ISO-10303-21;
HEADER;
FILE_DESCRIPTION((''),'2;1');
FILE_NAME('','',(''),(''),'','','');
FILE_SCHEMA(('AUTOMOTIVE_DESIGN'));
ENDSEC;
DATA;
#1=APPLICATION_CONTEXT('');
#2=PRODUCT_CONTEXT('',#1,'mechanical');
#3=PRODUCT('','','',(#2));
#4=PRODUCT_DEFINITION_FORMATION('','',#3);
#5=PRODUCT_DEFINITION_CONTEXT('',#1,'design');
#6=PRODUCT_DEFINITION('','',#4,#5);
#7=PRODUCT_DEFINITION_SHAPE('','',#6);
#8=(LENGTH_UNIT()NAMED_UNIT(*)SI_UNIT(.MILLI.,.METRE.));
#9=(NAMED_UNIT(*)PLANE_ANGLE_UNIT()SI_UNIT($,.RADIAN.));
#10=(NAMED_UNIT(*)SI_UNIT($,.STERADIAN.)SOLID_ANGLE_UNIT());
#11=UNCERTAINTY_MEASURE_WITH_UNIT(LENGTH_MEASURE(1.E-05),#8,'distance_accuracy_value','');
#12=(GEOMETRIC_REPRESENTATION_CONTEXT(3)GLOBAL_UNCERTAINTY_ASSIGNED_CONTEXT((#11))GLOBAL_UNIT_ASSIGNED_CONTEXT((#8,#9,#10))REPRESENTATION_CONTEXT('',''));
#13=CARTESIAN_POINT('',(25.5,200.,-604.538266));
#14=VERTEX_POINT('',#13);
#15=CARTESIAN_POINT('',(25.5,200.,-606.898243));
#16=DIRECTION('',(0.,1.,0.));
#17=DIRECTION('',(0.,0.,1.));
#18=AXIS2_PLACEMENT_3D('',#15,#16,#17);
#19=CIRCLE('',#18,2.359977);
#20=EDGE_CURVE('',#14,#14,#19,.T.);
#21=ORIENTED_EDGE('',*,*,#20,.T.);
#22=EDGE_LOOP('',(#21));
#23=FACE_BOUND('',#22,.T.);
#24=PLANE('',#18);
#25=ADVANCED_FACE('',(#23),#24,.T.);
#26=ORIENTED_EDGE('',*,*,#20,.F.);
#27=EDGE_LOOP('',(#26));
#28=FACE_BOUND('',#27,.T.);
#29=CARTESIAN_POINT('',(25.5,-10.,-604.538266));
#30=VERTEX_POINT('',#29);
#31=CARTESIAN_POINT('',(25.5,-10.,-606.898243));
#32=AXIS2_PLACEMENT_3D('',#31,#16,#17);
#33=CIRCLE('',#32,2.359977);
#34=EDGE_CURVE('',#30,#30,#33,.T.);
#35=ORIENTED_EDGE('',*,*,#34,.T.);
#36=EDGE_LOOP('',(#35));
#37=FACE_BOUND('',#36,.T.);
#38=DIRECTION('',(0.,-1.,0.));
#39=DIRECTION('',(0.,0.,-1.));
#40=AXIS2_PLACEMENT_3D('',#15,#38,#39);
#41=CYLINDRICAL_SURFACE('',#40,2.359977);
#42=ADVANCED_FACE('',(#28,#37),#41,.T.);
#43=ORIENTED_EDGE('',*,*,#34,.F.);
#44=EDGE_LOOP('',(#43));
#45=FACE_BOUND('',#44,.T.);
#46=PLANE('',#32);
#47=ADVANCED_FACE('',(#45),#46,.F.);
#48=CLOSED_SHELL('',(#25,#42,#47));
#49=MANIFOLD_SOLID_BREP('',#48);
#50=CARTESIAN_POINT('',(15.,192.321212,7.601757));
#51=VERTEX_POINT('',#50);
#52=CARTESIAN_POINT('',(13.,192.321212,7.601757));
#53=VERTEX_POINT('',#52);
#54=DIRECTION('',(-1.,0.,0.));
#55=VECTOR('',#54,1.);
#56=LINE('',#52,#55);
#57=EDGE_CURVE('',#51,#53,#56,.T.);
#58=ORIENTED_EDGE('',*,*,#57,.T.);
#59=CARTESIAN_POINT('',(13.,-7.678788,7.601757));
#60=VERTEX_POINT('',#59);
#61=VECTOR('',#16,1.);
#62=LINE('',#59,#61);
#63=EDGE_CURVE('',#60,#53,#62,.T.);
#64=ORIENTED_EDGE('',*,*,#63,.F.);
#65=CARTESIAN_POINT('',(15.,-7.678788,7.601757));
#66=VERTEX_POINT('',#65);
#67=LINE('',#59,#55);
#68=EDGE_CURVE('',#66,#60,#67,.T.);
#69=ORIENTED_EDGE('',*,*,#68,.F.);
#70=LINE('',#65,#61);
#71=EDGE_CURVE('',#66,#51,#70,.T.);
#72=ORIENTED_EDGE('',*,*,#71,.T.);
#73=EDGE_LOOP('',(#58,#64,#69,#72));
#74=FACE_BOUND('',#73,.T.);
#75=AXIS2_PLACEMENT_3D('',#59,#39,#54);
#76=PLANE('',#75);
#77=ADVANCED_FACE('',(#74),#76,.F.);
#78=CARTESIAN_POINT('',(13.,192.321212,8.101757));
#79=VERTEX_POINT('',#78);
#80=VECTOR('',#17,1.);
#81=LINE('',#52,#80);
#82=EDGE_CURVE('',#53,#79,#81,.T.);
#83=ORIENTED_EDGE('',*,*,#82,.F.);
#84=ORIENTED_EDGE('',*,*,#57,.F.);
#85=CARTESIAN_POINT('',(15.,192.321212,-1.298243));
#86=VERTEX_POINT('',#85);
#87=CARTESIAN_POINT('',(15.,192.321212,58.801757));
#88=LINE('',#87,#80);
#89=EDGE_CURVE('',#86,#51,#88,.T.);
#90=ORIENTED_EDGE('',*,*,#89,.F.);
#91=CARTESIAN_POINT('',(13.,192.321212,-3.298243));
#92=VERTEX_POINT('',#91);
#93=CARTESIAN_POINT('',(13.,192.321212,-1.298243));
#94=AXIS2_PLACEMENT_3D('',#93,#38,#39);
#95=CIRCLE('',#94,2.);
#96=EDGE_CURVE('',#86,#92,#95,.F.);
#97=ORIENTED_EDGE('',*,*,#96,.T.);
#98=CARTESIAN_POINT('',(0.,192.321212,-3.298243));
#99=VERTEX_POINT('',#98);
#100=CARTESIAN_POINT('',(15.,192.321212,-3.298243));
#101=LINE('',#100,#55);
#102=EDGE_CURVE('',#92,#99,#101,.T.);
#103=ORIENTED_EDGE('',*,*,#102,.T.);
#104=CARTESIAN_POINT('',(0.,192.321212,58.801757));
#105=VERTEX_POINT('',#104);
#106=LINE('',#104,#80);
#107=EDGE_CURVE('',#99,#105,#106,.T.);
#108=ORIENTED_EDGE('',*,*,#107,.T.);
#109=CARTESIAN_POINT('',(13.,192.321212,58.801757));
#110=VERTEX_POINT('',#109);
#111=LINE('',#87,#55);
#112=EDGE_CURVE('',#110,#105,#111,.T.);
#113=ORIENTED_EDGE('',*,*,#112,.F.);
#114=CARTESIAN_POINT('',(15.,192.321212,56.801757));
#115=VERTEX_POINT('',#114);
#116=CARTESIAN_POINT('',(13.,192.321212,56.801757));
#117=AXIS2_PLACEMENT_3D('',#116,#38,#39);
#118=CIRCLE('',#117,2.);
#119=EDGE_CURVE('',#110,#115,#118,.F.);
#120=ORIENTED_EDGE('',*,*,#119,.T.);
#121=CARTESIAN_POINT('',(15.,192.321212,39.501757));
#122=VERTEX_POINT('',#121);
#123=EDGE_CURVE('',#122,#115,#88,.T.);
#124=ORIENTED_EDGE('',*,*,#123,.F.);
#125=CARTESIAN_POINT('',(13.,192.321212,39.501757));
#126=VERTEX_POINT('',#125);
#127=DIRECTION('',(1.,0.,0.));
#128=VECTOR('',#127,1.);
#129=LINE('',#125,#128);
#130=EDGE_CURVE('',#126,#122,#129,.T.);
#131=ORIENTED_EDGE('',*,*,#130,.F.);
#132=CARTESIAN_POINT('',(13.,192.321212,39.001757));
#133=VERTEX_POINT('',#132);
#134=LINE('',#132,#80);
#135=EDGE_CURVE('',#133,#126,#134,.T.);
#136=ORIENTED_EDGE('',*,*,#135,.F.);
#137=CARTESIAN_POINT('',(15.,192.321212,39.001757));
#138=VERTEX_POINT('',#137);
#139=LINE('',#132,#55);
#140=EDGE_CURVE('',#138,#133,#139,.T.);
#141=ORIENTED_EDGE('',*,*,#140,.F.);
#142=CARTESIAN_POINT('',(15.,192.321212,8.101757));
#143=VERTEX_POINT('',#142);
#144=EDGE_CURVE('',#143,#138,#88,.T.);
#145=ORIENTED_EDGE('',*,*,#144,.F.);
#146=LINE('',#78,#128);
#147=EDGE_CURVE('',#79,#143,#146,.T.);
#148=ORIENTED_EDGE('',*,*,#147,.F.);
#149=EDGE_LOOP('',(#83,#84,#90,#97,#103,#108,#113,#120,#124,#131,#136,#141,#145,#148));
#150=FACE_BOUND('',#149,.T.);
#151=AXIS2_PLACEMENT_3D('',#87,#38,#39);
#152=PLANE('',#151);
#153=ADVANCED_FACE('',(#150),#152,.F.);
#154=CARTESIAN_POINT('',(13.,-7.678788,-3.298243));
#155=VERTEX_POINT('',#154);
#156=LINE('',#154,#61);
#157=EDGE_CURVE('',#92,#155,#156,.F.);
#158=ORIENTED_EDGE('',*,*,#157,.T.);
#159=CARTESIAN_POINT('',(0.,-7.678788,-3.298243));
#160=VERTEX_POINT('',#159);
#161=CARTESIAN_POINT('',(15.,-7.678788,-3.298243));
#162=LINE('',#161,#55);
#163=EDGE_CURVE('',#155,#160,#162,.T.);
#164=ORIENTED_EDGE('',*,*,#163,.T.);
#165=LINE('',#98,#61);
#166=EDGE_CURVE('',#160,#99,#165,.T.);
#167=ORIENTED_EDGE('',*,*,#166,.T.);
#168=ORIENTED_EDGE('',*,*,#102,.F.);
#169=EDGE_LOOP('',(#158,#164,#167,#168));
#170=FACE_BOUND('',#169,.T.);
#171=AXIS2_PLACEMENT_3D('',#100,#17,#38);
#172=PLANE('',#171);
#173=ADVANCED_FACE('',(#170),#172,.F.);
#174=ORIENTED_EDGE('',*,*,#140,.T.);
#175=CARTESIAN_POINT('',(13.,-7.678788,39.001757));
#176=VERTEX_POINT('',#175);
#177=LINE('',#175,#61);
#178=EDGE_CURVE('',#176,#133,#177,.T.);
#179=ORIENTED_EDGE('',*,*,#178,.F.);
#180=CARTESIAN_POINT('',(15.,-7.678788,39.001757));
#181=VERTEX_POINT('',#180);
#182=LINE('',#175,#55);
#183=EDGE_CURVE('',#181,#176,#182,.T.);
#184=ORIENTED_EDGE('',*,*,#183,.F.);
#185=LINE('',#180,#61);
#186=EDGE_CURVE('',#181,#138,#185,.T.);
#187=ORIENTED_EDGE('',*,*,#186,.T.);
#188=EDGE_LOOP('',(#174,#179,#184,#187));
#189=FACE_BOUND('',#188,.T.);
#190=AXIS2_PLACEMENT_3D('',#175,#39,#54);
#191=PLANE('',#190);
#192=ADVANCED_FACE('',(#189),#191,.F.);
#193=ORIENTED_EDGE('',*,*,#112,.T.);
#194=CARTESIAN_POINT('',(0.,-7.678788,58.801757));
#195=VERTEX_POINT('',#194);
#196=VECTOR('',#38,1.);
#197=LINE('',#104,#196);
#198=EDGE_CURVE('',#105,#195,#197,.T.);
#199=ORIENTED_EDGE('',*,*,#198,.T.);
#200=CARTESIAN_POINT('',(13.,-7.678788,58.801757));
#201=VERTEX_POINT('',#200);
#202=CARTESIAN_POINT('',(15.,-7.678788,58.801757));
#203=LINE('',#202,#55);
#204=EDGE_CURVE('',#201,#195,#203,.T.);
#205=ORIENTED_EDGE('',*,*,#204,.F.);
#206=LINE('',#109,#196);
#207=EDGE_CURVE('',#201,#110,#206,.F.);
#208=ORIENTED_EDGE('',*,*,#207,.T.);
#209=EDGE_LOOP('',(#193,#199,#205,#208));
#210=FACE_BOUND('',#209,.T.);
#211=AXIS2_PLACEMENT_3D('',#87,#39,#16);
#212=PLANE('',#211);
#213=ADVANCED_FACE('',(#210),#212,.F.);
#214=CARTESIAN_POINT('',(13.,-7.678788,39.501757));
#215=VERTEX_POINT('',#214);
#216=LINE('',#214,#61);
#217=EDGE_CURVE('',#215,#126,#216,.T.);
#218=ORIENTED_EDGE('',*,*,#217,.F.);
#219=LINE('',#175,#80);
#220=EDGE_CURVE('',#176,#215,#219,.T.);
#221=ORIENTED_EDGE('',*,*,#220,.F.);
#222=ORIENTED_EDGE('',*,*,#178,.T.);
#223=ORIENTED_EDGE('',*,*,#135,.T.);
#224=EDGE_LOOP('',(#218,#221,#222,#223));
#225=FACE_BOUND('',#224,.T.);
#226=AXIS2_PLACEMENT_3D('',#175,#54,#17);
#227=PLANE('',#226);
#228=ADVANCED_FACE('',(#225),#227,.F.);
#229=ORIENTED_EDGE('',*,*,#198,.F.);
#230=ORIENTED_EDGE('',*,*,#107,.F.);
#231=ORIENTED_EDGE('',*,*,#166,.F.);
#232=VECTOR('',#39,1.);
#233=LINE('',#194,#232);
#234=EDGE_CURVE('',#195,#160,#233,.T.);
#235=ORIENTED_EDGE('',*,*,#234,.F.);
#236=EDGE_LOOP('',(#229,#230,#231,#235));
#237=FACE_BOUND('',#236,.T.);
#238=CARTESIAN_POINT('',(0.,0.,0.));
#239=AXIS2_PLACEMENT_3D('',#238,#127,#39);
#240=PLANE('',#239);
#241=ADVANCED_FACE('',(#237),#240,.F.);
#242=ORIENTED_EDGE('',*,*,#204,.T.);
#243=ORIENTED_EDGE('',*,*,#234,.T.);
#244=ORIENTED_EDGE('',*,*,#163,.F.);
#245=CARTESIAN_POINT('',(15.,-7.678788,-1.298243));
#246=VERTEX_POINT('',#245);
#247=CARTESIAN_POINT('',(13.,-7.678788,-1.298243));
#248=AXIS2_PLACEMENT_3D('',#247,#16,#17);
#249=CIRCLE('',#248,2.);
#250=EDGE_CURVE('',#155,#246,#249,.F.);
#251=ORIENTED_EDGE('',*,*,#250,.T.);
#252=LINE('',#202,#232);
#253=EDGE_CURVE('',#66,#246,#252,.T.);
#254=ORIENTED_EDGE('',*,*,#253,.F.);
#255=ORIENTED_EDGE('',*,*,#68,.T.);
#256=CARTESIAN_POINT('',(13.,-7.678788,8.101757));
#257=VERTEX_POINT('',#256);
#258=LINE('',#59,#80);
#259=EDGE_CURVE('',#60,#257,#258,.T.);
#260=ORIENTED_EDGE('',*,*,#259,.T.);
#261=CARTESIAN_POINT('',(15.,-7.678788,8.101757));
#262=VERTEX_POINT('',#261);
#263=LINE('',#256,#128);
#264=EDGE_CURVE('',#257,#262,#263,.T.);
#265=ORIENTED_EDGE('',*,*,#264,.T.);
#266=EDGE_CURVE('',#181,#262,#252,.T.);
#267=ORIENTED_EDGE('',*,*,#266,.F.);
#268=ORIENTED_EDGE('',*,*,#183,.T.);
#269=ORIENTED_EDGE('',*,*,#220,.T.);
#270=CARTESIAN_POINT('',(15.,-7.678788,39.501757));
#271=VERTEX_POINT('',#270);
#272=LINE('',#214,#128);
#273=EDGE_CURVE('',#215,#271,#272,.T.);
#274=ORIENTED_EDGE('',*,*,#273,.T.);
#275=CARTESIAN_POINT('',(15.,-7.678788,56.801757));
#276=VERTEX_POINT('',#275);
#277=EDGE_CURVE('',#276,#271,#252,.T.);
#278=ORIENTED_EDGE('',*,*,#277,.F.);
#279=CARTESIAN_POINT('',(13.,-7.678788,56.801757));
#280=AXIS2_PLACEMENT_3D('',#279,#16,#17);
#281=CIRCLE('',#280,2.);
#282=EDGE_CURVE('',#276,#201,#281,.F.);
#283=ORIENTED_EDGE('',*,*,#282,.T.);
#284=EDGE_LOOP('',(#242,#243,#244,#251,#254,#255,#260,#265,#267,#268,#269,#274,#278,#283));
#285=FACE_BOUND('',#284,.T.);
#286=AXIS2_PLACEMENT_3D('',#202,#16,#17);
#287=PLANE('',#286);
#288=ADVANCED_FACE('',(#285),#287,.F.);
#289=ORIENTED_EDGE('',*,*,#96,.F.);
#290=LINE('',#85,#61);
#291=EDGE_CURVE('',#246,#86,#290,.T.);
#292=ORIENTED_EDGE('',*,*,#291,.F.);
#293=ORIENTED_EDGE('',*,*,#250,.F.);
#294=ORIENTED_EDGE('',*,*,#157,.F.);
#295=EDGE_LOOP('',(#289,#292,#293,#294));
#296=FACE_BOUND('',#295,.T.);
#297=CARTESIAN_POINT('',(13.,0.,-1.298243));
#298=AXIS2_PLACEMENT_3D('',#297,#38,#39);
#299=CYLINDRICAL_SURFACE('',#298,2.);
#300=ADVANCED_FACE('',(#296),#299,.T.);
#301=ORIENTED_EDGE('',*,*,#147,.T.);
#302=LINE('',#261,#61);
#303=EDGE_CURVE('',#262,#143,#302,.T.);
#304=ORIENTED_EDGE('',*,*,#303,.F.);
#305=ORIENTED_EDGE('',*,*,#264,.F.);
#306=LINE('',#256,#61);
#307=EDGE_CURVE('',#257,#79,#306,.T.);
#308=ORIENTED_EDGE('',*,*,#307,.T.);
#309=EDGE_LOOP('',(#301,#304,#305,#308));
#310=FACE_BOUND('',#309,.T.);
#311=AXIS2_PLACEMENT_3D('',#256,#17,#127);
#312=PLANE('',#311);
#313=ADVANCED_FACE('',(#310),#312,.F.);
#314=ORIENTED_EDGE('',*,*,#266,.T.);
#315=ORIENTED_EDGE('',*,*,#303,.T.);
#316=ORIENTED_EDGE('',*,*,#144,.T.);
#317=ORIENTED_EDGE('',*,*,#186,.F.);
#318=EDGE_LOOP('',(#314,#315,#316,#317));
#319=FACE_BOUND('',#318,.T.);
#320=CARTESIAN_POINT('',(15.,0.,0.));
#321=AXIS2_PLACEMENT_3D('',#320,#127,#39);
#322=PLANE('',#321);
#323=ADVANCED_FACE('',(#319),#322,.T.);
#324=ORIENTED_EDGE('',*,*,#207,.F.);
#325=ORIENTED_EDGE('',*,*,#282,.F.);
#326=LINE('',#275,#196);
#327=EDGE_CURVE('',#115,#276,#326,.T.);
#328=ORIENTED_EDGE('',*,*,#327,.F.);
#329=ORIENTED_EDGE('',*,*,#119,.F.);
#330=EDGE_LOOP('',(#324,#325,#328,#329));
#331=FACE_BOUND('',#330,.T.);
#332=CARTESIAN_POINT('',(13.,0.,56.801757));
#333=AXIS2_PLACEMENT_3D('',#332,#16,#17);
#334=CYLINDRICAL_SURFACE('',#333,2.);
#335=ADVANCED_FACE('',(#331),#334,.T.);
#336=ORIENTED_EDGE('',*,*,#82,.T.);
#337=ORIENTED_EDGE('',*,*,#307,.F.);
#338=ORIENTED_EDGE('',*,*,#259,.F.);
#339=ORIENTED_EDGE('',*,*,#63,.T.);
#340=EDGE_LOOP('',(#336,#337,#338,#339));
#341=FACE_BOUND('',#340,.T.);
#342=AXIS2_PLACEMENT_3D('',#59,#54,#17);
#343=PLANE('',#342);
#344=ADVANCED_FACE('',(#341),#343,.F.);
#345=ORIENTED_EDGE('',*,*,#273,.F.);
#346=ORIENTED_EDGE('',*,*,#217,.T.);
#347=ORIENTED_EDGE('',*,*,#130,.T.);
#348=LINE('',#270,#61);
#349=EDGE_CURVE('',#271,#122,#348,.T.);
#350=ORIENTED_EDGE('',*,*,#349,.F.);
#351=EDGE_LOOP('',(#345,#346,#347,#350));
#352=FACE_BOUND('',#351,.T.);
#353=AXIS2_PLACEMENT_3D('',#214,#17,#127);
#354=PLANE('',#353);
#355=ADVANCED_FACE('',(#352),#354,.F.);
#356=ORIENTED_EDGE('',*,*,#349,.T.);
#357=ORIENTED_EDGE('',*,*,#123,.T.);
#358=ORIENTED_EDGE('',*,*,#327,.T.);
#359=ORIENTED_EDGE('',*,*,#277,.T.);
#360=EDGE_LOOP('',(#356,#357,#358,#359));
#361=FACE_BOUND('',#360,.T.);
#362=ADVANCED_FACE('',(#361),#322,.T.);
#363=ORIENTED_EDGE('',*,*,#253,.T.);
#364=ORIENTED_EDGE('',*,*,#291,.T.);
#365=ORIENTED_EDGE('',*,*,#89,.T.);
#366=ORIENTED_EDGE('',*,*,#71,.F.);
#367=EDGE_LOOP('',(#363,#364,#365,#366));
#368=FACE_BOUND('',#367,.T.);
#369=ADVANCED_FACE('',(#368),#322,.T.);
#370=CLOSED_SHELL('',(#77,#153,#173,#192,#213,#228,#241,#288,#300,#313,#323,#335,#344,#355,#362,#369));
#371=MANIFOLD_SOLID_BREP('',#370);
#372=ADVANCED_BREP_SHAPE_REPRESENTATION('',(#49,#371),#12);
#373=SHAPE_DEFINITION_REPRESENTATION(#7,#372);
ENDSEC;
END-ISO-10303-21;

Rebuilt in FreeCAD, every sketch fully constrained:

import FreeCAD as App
import Part
import Sketcher

V = App.Vector


def edges_at(feature, points):
    """Names of the edges that pass closest to the given points."""
    edges = feature.Shape.Edges
    near = lambda p: min(range(len(edges)), key=lambda i: edges[i].distToShape(Part.Vertex(*p))[0])
    return sorted({f"Edge{near(p) + 1}" for p in points})


def add_polygon(sketch, points):
    """Adds a closed chain of lines whose ends are joined by coincident constraints."""
    first, n = sketch.GeometryCount, len(points)
    for a, b in zip(points, points[1:] + points[:1]):
        sketch.addGeometry(Part.LineSegment(App.Vector(*a, 0), App.Vector(*b, 0)), False)
    for i in range(n):
        sketch.addConstraint(Sketcher.Constraint("Coincident", first + i, 2, first + (i + 1) % n, 1))

doc = App.newDocument("Part")
body = doc.addObject("PartDesign::Body", "Body")

# Sketch on YZ plane
sketch1 = doc.addObject("Sketcher::SketchObject", "Sketch")
body.addObject(sketch1)
sketch1.AttachmentSupport = (doc.YZ_Plane, [""])
sketch1.MapMode = "FlatFace"
add_polygon(sketch1, [(192.321212, 58.801757), (-7.678788, 58.801757), (-7.678788, -3.298243), (192.321212, -3.298243)])  # lines 0-3
sketch1.addConstraint([
    Sketcher.Constraint("Horizontal", 0),
    Sketcher.Constraint("Vertical", 1),
    Sketcher.Constraint("Horizontal", 2),
    Sketcher.Constraint("Vertical", 3),
    Sketcher.Constraint("DistanceX", 0, 2, 0, 1, 200.0),
    Sketcher.Constraint("DistanceY", 1, 2, 1, 1, 62.1),
    Sketcher.Constraint("DistanceX", 0, 2, -1, 1, 7.678788),
    Sketcher.Constraint("DistanceY", -1, 1, 0, 2, 58.801757),
])
pad1 = doc.addObject("PartDesign::Pad", "Pad")
body.addObject(pad1)
pad1.Profile = sketch1
pad1.Length = 15

# Sketch on XZ plane
sketch2 = doc.addObject("Sketcher::SketchObject", "Sketch001")
body.addObject(sketch2)
sketch2.AttachmentSupport = (doc.XZ_Plane, [""])
sketch2.MapMode = "FlatFace"
sketch2.AttachmentOffset = App.Placement(V(0, 0, -192.321212), App.Rotation())
add_polygon(sketch2, [(13, 39.001757), (13, 39.501757), (15, 39.501757), (15, 39.001757)])  # lines 0-3
add_polygon(sketch2, [(13, 7.601757), (13, 8.101757), (15, 8.101757), (15, 7.601757)])  # lines 4-7
sketch2.addConstraint([
    Sketcher.Constraint("Vertical", 0),
    Sketcher.Constraint("Horizontal", 1),
    Sketcher.Constraint("Vertical", 2),
    Sketcher.Constraint("Horizontal", 3),
    Sketcher.Constraint("Vertical", 4),
    Sketcher.Constraint("Horizontal", 5),
    Sketcher.Constraint("Vertical", 6),
    Sketcher.Constraint("Horizontal", 7),
    Sketcher.Constraint("Vertical", 3, 2, 4, 2),
    Sketcher.Constraint("Vertical", 2, 2, 5, 2),
    Sketcher.Constraint("Equal", 2, 4),
    Sketcher.Constraint("DistanceX", 1, 1, 1, 2, 2.0),
    Sketcher.Constraint("DistanceY", 0, 1, 0, 2, 0.5),
    Sketcher.Constraint("DistanceX", -1, 1, 0, 2, 13.0),
    Sketcher.Constraint("DistanceY", 4, 2, 3, 2, 30.9),
    Sketcher.Constraint("DistanceY", -1, 1, 0, 2, 39.501757),
])
pocket1 = doc.addObject("PartDesign::Pocket", "Pocket")
body.addObject(pocket1)
pocket1.Profile = sketch2
pocket1.Type = "ThroughAll"
pocket1.Reversed = True
doc.recompute()

fillet = doc.addObject("PartDesign::Fillet", "Fillet")
body.addObject(fillet)
fillet.Base = (pocket1, edges_at(pocket1, [(15, 92.321, -3.298), (15, 92.321, 58.802)]))
fillet.Radius = 2
body2 = doc.addObject("PartDesign::Body", "Body001")

# Sketch on XZ plane
sketch3 = doc.addObject("Sketcher::SketchObject", "Sketch002")
body2.addObject(sketch3)
sketch3.AttachmentSupport = (doc.getObject("XZ_Plane001"), [""])
sketch3.MapMode = "FlatFace"
sketch3.AttachmentOffset = App.Placement(V(0, 0, 10), App.Rotation())
sketch3.addGeometry(Part.Circle(V(25.5, -606.898243, 0), V(0, 0, 1), 2.359977), False)
sketch3.addConstraint([
    Sketcher.Constraint("DistanceX", -1, 1, 0, 3, 25.5),
    Sketcher.Constraint("Diameter", 0, 4.719954),
    Sketcher.Constraint("DistanceY", 0, 3, -1, 1, 606.898243),
])
pad2 = doc.addObject("PartDesign::Pad", "Pad001")
body2.addObject(pad2)
pad2.Profile = sketch3
pad2.Length = 210
pad2.Reversed = True

doc.recompute()
